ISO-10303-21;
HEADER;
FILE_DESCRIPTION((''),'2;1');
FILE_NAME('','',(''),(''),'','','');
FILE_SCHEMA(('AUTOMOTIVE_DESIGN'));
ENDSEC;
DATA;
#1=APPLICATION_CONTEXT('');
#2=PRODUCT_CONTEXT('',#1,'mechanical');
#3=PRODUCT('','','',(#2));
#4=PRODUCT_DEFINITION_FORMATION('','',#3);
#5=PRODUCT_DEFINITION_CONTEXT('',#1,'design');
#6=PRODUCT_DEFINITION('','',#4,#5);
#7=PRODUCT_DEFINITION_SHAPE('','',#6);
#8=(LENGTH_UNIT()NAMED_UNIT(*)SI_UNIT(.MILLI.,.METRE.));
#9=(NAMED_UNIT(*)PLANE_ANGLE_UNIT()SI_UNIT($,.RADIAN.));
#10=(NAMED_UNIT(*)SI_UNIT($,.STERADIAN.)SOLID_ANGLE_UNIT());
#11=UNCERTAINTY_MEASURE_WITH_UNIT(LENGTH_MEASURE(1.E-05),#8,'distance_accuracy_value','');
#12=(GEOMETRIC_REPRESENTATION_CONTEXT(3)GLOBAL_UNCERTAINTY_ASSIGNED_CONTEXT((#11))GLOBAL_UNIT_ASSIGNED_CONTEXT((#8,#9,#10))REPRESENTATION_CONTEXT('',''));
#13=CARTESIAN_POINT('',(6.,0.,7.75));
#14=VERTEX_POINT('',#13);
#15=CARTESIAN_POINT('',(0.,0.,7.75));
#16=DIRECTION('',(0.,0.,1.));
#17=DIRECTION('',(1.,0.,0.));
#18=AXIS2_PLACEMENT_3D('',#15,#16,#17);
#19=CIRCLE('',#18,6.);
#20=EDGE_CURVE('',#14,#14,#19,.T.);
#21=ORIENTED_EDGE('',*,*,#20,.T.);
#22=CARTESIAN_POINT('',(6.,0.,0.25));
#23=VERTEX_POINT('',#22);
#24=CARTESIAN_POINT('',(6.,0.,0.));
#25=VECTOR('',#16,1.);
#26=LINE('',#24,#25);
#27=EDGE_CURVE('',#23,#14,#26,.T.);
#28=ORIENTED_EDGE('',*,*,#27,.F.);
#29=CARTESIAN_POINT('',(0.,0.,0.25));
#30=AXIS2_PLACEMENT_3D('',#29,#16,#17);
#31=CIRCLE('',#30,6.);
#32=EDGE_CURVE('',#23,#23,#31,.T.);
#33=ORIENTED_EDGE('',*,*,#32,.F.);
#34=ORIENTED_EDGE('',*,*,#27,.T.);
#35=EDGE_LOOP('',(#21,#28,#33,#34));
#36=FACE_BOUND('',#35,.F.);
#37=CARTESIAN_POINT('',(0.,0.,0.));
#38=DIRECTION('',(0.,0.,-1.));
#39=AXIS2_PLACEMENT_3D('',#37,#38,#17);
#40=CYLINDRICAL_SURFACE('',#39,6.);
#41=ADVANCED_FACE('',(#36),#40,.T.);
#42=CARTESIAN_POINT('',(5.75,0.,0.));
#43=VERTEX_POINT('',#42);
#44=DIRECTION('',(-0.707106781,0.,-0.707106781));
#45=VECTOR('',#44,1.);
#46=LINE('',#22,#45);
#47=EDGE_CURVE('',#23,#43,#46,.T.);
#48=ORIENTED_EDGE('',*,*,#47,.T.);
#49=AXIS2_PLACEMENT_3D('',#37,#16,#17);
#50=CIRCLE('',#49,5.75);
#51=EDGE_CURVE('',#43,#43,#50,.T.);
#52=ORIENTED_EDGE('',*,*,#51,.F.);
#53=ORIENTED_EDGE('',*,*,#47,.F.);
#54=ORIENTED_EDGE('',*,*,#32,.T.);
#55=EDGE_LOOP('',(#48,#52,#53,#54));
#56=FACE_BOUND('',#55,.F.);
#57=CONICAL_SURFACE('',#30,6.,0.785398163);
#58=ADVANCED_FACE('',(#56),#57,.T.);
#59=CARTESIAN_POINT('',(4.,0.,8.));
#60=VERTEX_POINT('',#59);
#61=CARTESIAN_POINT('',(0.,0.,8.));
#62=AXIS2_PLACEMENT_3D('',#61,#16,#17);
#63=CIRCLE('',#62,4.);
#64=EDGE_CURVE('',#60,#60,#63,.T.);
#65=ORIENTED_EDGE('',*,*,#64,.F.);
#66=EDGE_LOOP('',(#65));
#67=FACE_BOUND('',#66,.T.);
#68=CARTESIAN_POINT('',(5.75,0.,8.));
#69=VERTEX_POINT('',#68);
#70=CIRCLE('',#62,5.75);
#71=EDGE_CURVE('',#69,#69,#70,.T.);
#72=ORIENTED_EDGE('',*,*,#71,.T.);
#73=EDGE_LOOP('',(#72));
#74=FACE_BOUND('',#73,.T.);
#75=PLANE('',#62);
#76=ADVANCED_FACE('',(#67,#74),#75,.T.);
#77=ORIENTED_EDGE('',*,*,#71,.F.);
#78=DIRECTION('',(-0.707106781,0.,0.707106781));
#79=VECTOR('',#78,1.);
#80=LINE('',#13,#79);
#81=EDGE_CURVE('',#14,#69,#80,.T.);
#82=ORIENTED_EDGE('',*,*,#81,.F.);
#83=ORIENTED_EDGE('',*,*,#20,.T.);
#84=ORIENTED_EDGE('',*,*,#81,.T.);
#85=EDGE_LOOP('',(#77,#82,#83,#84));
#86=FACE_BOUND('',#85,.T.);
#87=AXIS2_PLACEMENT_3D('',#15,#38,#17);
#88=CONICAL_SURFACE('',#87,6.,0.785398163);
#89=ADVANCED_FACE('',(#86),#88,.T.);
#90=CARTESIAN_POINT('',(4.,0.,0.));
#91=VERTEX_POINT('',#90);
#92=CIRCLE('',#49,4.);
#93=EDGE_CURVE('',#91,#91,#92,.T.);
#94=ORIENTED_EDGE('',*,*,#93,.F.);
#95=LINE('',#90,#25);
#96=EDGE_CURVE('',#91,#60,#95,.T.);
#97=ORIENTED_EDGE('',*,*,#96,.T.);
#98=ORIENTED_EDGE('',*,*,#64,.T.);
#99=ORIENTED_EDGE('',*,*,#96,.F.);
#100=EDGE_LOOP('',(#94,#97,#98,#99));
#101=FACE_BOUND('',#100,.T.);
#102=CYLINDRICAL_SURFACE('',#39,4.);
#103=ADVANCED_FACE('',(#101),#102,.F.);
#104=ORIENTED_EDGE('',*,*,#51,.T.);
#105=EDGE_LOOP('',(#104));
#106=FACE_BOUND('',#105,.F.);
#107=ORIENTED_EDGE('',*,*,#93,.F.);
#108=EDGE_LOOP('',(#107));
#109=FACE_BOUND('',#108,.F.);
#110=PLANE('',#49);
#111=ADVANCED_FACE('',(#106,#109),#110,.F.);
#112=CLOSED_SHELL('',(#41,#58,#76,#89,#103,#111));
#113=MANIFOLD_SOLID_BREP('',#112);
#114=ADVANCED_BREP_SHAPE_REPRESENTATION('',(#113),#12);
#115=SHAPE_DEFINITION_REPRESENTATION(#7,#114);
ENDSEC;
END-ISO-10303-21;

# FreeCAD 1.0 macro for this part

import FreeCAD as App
import Part
import Sketcher

V = App.Vector


def edges_at(feature, points):
    """Names of the edges that pass closest to the given points."""
    edges = feature.Shape.Edges
    near = lambda p: min(range(len(edges)), key=lambda i: edges[i].distToShape(Part.Vertex(*p))[0])
    return sorted({f"Edge{near(p) + 1}" for p in points})

doc = App.newDocument("Part")
params = doc.addObject("Spreadsheet::Sheet", "Params")
for row, (alias, value) in enumerate([
    ("sketch1_diameter", "12 mm"),
    ("sketch1_diameter2", "8 mm"),
    ("pad1_length", "8 mm"),
    ("chamfer_size", "0.25 mm"),
], start=1):
    params.set(f"A{row}", alias)
    params.set(f"B{row}", "=" + value)
    params.setAlias(f"B{row}", alias)

body = doc.addObject("PartDesign::Body", "Body")

# Sketch on XY plane
sketch1 = body.newObject("Sketcher::SketchObject", "Sketch")
sketch1.AttachmentSupport = (doc.getObject("XY_Plane"), [""])
sketch1.MapMode = "FlatFace"
sketch1.addGeometry([
    Part.Circle(V(0, 0, 0), V(0, 0, 1), 6),
    Part.Circle(V(0, 0, 0), V(0, 0, 1), 4),
], False)
sketch1.addConstraint([
    Sketcher.Constraint("Coincident", 0, 3, -1, 1),
    Sketcher.Constraint("Coincident", 1, 3, -1, 1),
    Sketcher.Constraint("Diameter", 0, 12.0),
    Sketcher.Constraint("Diameter", 1, 8.0),
])
sketch1.setExpression("Constraints[2]", "Params.sketch1_diameter")
sketch1.setExpression("Constraints[3]", "Params.sketch1_diameter2")
pad1 = body.newObject("PartDesign::Pad", "Pad")
pad1.Profile = sketch1
pad1.setExpression("Length", "Params.pad1_length")
doc.recompute()

chamfer = body.newObject("PartDesign::Chamfer", "Chamfer")
chamfer.Base = (pad1, edges_at(pad1, [(-6, 0, 8), (-6, 0, 0)]))
chamfer.setExpression("Size", "Params.chamfer_size")

doc.recompute()
